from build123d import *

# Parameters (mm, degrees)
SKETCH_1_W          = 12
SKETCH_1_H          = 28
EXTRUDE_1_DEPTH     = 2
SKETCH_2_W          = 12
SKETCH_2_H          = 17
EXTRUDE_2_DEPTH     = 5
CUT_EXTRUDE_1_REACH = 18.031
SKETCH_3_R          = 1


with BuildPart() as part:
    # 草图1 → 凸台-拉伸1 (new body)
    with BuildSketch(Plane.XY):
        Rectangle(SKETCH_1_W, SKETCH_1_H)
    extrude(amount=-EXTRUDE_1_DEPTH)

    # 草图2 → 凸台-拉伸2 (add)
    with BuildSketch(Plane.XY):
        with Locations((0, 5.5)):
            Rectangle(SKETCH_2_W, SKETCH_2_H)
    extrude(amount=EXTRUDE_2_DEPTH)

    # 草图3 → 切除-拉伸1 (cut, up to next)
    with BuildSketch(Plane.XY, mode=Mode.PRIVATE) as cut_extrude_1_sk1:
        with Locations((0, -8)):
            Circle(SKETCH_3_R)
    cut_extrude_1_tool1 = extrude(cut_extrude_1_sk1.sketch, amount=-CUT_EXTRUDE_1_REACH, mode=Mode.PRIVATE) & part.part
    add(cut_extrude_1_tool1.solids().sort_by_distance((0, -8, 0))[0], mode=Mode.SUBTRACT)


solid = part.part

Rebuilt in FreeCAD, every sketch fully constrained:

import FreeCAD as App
import Part
import Sketcher

V = App.Vector
Q = App.Units.Quantity

doc = App.newDocument("Part")
body = doc.addObject("PartDesign::Body", "Body")

# Sketch on XY plane
sketch1 = body.newObject("Sketcher::SketchObject", "Sketch")
sketch1.AttachmentSupport = (doc.getObject("XY_Plane"), [""])
sketch1.MapMode = "FlatFace"
sketch1.addGeometry([
    Part.LineSegment(V(-6, 14, 0), V(-6, -14, 0)),
    Part.LineSegment(V(-6, -14, 0), V(6, -14, 0)),
    Part.LineSegment(V(6, -14, 0), V(6, 14, 0)),
    Part.LineSegment(V(6, 14, 0), V(-6, 14, 0)),
], False)
sketch1.addConstraint([
    Sketcher.Constraint("Coincident", 0, 2, 1, 1),
    Sketcher.Constraint("Coincident", 1, 2, 2, 1),
    Sketcher.Constraint("Coincident", 2, 2, 3, 1),
    Sketcher.Constraint("Coincident", 3, 2, 0, 1),
    Sketcher.Constraint("Vertical", 0),
    Sketcher.Constraint("Horizontal", 1),
    Sketcher.Constraint("Vertical", 2),
    Sketcher.Constraint("Horizontal", 3),
    Sketcher.Constraint("Symmetric", 0, 2, 2, 2, -1, 1),
    Sketcher.Constraint("DistanceX", 1, 1, 1, 2, Q("12 mm")),
    Sketcher.Constraint("DistanceY", 0, 2, 0, 1, Q("28 mm")),
])
pad1 = body.newObject("PartDesign::Pad", "Pad")
pad1.Profile = sketch1
pad1.Length = 2
pad1.Reversed = True

# Sketch on XY plane
sketch2 = body.newObject("Sketcher::SketchObject", "Sketch001")
sketch2.AttachmentSupport = (doc.getObject("XY_Plane"), [""])
sketch2.MapMode = "FlatFace"
sketch2.addGeometry([
    Part.LineSegment(V(-6, 14, 0), V(-6, -3, 0)),
    Part.LineSegment(V(-6, -3, 0), V(6, -3, 0)),
    Part.LineSegment(V(6, -3, 0), V(6, 14, 0)),
    Part.LineSegment(V(6, 14, 0), V(-6, 14, 0)),
], False)
sketch2.addConstraint([
    Sketcher.Constraint("Coincident", 0, 2, 1, 1),
    Sketcher.Constraint("Coincident", 1, 2, 2, 1),
    Sketcher.Constraint("Coincident", 2, 2, 3, 1),
    Sketcher.Constraint("Coincident", 3, 2, 0, 1),
    Sketcher.Constraint("Vertical", 0),
    Sketcher.Constraint("Horizontal", 1),
    Sketcher.Constraint("Vertical", 2),
    Sketcher.Constraint("Horizontal", 3),
    Sketcher.Constraint("DistanceX", 1, 1, 1, 2, Q("12 mm")),
    Sketcher.Constraint("DistanceY", 0, 2, 0, 1, Q("17 mm")),
    Sketcher.Constraint("DistanceX", 0, 2, -1, 1, Q("6 mm")),
    Sketcher.Constraint("DistanceY", 0, 2, -1, 1, Q("3 mm")),
])
pad2 = body.newObject("PartDesign::Pad", "Pad001")
pad2.Profile = sketch2
pad2.Length = 5

# Sketch on XY plane
sketch3 = body.newObject("Sketcher::SketchObject", "Sketch002")
sketch3.AttachmentSupport = (doc.getObject("XY_Plane"), [""])
sketch3.MapMode = "FlatFace"
sketch3.addGeometry(Part.Circle(V(0, -8, 0), V(0, 0, 1), 1), False)
sketch3.addConstraint([
    Sketcher.Constraint("PointOnObject", 0, 3, -2),
    Sketcher.Constraint("Diameter", 0, Q("2 mm")),
    Sketcher.Constraint("DistanceY", 0, 3, -1, 1, Q("8 mm")),
])
pocket1 = body.newObject("PartDesign::Pocket", "Pocket")
pocket1.Profile = sketch3
pocket1.Type = "UpToFirst"

doc.recompute()
